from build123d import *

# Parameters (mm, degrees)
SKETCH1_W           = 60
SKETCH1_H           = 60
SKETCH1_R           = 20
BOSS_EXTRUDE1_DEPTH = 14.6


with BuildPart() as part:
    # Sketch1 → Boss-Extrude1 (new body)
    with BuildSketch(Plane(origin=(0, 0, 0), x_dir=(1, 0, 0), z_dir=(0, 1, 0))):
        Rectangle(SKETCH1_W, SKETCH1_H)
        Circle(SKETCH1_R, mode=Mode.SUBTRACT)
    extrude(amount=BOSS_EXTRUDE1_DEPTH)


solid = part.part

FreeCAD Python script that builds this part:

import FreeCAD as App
import Part
import Sketcher
Q = App.Units.Quantity


def add_polygon(sketch, points):
    """Adds a closed chain of lines whose ends are joined by coincident constraints."""
    first, n = sketch.GeometryCount, len(points)
    for a, b in zip(points, points[1:] + points[:1]):
        sketch.addGeometry(Part.LineSegment(App.Vector(*a, 0), App.Vector(*b, 0)), False)
    for i in range(n):
        sketch.addConstraint(Sketcher.Constraint("Coincident", first + i, 2, first + (i + 1) % n, 1))

doc = App.newDocument("Part")
body = doc.addObject("PartDesign::Body", "Body")

# Sketch on XZ plane
sketch1 = body.newObject("Sketcher::SketchObject", "Sketch")
sketch1.AttachmentSupport = (doc.getObject("XZ_Plane"), [""])
sketch1.MapMode = "FlatFace"
add_polygon(sketch1, [(-30, -30), (-30, 30), (30, 30), (30, -30)])  # lines 0-3
sketch1.addGeometry(Part.Circle(App.Vector(0, 0, 0), App.Vector(0, 0, 1), 20), False)  # 4
sketch1.addConstraint([
    Sketcher.Constraint("Vertical", 0),
    Sketcher.Constraint("Horizontal", 1),
    Sketcher.Constraint("Vertical", 2),
    Sketcher.Constraint("Horizontal", 3),
    Sketcher.Constraint("Coincident", 4, 3, -1, 1),
    Sketcher.Constraint("Symmetric", 0, 2, 2, 2, -1, 1),
    Sketcher.Constraint("Equal", 3, 0),
    Sketcher.Constraint("Diameter", 4, Q("40 mm")),
    Sketcher.Constraint("DistanceX", 1, 1, 1, 2, Q("60 mm")),
])
pad1 = body.newObject("PartDesign::Pad", "Pad")
pad1.Profile = sketch1
pad1.Length = 14.6
pad1.Reversed = True

doc.recompute()
